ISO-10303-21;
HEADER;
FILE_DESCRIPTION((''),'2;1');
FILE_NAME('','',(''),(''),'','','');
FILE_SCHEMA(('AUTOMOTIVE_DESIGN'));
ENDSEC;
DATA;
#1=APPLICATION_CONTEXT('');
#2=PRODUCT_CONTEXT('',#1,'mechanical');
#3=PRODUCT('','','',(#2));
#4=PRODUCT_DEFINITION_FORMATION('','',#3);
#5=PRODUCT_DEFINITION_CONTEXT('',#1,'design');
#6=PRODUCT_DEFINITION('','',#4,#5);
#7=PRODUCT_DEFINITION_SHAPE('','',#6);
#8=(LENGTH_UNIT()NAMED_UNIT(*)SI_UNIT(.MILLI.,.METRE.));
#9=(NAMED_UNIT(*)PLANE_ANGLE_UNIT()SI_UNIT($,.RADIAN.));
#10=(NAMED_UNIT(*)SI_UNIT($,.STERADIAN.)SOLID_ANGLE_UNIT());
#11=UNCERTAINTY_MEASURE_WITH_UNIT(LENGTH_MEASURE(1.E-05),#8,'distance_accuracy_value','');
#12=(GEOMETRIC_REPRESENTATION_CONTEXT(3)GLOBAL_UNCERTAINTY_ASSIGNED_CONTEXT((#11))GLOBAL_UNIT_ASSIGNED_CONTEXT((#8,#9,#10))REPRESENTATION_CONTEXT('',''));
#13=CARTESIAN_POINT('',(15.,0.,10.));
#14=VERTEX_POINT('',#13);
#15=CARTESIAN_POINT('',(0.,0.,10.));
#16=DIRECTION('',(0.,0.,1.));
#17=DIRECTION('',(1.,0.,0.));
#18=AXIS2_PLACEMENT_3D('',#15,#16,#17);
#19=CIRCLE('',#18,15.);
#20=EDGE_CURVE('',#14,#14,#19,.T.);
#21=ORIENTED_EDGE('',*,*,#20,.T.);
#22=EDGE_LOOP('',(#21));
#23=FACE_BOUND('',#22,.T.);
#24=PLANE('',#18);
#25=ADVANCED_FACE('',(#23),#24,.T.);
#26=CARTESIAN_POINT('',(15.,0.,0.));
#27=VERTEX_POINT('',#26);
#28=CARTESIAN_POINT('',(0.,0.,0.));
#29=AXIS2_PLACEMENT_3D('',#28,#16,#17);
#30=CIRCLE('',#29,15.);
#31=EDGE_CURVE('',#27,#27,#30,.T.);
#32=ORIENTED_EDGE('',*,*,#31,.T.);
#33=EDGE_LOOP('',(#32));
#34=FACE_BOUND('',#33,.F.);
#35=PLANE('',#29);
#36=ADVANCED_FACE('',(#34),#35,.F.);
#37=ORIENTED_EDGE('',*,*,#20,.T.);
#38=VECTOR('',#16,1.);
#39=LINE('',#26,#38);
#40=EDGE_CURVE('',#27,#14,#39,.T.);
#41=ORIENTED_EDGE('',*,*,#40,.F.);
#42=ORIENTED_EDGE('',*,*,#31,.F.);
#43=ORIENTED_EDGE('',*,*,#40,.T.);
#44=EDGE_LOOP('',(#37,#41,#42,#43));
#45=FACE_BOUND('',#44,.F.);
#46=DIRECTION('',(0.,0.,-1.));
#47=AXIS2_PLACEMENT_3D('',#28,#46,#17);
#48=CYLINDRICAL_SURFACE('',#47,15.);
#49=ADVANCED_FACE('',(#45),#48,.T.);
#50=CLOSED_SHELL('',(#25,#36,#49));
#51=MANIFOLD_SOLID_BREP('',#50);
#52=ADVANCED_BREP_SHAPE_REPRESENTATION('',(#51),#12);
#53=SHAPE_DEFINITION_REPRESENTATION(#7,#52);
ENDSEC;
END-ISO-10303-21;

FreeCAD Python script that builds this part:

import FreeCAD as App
import Part
import Sketcher

V = App.Vector

doc = App.newDocument("Part")
body = doc.addObject("PartDesign::Body", "Body")

# Sketch on XY plane
sketch1 = body.newObject("Sketcher::SketchObject", "Sketch")
sketch1.AttachmentSupport = (doc.getObject("XY_Plane"), [""])
sketch1.MapMode = "FlatFace"
sketch1.addGeometry(Part.Circle(V(0, 0, 0), V(0, 0, 1), 15), False)
sketch1.addConstraint(Sketcher.Constraint("Coincident", 0, 3, -1, 1))
sketch1.addConstraint(Sketcher.Constraint("Diameter", 0, 30.0))
pad1 = body.newObject("PartDesign::Pad", "Pad")
pad1.Profile = sketch1
pad1.Length = 10

doc.recompute()
